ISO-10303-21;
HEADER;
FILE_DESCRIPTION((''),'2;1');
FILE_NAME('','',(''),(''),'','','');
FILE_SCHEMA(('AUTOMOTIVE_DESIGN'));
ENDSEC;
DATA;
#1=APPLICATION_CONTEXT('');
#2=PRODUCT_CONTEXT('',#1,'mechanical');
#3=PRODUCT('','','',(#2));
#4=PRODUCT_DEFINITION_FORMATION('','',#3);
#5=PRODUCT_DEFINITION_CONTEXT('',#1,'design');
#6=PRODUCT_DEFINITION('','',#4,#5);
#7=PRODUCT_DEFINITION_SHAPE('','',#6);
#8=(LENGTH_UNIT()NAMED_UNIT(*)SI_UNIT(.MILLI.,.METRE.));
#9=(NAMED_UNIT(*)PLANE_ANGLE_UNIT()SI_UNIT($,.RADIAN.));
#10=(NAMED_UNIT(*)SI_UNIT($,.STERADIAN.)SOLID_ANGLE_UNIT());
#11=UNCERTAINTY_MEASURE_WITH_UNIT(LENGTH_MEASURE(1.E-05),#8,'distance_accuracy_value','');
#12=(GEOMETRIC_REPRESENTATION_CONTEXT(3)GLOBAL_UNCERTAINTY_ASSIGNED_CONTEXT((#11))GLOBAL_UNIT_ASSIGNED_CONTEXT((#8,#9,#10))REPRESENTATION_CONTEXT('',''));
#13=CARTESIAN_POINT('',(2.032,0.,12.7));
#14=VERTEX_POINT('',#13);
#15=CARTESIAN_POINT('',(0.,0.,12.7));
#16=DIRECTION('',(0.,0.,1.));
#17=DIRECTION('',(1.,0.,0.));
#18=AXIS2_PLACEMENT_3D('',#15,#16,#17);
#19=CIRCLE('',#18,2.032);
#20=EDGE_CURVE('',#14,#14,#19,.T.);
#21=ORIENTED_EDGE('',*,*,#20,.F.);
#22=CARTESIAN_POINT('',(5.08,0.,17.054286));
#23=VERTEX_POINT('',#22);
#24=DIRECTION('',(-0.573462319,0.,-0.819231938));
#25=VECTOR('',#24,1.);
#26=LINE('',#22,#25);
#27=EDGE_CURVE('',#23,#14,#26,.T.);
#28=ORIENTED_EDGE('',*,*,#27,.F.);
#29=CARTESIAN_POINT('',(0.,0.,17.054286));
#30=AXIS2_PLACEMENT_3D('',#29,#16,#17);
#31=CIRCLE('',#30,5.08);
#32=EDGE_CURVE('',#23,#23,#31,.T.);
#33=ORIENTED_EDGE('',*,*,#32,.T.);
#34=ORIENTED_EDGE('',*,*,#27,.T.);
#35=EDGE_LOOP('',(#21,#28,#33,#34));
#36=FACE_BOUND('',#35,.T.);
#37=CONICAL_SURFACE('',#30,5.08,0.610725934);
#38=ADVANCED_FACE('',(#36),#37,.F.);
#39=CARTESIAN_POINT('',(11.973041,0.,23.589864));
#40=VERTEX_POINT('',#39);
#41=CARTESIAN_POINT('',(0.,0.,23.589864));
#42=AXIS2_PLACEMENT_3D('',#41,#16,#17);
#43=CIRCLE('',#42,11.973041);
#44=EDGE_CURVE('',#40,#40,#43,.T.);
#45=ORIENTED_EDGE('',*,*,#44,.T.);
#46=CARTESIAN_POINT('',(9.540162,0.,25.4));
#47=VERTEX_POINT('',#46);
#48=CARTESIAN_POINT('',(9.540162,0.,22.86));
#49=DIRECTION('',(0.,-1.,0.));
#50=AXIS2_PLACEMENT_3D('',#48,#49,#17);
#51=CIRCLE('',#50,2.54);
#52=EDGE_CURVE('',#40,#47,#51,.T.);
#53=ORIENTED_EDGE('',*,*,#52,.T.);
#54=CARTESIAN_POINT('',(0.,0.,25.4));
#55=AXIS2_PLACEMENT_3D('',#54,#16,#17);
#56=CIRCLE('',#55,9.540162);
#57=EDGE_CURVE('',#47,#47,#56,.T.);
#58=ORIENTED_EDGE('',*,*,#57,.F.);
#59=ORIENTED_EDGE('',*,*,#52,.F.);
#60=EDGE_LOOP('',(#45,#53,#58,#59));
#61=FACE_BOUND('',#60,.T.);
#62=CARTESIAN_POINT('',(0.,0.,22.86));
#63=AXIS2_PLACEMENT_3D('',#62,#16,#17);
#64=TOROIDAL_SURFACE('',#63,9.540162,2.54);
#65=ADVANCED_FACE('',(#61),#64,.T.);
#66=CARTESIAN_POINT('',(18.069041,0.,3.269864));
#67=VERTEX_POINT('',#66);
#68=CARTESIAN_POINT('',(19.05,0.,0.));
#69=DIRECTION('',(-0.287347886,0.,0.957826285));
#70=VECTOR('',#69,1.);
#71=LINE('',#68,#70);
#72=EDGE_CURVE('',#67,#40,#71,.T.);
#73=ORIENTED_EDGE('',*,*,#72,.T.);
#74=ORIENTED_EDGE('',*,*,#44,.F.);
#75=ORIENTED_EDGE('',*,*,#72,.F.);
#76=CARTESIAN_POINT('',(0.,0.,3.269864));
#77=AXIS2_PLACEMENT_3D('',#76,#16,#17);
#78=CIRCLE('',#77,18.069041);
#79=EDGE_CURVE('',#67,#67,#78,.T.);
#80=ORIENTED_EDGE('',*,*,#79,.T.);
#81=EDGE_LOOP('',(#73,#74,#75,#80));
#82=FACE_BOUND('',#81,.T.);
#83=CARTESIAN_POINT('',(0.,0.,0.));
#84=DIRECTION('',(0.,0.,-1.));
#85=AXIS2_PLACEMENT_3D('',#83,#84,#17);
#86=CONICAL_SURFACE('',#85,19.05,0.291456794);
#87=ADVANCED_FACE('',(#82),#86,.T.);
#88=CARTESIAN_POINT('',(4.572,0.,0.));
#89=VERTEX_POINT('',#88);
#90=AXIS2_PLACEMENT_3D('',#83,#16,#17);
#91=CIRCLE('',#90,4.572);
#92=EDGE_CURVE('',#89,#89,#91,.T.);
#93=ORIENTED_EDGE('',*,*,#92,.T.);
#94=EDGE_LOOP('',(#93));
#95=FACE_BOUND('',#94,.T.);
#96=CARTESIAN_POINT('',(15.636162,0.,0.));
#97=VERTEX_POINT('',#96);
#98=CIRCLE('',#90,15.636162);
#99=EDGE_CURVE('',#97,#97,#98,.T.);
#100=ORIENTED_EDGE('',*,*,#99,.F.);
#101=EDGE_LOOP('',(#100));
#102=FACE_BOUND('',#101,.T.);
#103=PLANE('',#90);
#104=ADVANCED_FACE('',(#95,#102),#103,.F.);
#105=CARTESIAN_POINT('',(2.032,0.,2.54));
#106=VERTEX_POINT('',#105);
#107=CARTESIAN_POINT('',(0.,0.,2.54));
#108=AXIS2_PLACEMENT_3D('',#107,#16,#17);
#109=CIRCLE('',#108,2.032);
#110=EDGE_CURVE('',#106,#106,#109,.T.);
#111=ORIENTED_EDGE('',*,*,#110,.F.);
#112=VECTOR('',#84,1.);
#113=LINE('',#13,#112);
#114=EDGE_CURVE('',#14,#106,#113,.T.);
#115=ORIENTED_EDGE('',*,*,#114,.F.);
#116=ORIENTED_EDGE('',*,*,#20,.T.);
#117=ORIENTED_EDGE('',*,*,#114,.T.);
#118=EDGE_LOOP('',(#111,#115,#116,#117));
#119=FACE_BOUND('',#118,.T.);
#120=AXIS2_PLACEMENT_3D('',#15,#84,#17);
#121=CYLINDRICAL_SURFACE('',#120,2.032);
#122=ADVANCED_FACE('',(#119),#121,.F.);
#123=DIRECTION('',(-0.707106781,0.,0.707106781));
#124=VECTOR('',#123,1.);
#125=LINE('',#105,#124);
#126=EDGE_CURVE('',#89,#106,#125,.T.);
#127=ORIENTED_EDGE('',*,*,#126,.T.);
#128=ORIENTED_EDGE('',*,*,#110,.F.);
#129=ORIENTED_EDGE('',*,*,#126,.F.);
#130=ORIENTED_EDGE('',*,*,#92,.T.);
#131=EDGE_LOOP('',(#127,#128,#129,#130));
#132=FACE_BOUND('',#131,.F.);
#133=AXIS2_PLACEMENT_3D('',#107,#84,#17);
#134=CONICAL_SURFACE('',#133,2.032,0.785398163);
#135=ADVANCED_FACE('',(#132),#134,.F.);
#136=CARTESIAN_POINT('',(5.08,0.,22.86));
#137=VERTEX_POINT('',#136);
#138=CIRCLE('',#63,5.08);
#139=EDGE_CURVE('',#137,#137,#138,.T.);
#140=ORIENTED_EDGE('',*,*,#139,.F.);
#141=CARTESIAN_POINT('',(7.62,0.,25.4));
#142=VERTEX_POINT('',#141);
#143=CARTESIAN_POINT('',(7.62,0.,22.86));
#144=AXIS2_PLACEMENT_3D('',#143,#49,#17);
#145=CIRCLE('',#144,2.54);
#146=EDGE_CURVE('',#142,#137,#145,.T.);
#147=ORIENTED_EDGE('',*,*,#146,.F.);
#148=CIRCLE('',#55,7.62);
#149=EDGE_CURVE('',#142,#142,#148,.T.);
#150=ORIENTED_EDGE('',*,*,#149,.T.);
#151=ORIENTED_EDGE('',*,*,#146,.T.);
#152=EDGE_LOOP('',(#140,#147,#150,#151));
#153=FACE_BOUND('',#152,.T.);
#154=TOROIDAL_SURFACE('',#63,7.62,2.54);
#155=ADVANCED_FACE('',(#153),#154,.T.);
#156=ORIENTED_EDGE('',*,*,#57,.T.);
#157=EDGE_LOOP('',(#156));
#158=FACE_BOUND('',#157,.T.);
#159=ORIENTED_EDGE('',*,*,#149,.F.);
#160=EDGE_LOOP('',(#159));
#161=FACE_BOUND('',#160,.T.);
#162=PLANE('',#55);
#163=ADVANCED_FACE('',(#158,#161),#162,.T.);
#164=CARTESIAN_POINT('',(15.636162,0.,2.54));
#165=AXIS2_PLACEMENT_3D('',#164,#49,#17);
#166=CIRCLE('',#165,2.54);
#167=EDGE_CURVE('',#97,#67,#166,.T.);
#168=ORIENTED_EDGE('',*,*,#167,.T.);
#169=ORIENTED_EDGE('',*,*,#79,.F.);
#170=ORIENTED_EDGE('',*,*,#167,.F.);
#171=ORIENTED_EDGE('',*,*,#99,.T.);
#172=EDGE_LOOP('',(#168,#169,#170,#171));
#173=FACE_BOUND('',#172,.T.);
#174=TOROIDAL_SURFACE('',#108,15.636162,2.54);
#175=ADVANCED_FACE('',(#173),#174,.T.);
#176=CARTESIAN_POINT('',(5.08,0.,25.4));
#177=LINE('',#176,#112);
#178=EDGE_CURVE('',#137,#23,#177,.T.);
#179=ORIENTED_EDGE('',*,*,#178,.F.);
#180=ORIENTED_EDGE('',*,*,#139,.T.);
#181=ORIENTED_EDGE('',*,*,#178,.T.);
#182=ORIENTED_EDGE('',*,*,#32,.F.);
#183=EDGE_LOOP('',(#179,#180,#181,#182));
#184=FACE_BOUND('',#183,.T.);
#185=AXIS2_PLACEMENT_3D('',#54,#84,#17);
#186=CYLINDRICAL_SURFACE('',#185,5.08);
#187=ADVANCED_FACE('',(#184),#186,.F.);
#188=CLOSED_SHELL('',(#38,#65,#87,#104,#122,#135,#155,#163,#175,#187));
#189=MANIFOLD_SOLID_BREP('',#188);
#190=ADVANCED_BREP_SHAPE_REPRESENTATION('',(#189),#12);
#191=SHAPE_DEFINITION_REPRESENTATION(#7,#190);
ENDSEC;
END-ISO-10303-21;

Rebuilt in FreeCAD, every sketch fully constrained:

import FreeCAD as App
import Part
import Sketcher
Q = App.Units.Quantity


def edges_at(feature, points):
    """Names of the edges that pass closest to the given points."""
    edges = feature.Shape.Edges
    near = lambda p: min(range(len(edges)), key=lambda i: edges[i].distToShape(Part.Vertex(*p))[0])
    return sorted({f"Edge{near(p) + 1}" for p in points})


def add_polygon(sketch, points):
    """Adds a closed chain of lines whose ends are joined by coincident constraints."""
    first, n = sketch.GeometryCount, len(points)
    for a, b in zip(points, points[1:] + points[:1]):
        sketch.addGeometry(Part.LineSegment(App.Vector(*a, 0), App.Vector(*b, 0)), False)
    for i in range(n):
        sketch.addConstraint(Sketcher.Constraint("Coincident", first + i, 2, first + (i + 1) % n, 1))

doc = App.newDocument("Part")
body = doc.addObject("PartDesign::Body", "Body")

# Sketch on XZ plane
sketch1 = body.newObject("Sketcher::SketchObject", "Sketch")
sketch1.AttachmentSupport = (doc.getObject("XZ_Plane"), [""])
sketch1.MapMode = "FlatFace"
add_polygon(sketch1, [(2.032, 12.7), (2.032, 0), (19.05, 0), (11.43, 25.4), (5.08, 25.4), (5.08, 17.054286)])  # lines 0-5
sketch1.addConstraint(Sketcher.Constraint("Vertical", 0))
sketch1.addConstraint(Sketcher.Constraint("Horizontal", 1))
sketch1.addConstraint(Sketcher.Constraint("Horizontal", 3))
sketch1.addConstraint(Sketcher.Constraint("Vertical", 4))
sketch1.addConstraint(Sketcher.Constraint("PointOnObject", 0, 2, -1))
sketch1.addConstraint(Sketcher.Constraint("DistanceY", 0, 2, 0, 1, Q("0.5 in")))
sketch1.addConstraint(Sketcher.Constraint("DistanceY", -1, 1, 2, 2, Q("1 in")))
sketch1.addConstraint(Sketcher.Constraint("DistanceX", 1, 1, 1, 2, Q("0.67 in")))
sketch1.addConstraint(Sketcher.Constraint("DistanceX", 3, 2, 3, 1, Q("0.25 in")))
sketch1.addConstraint(Sketcher.Constraint("DistanceX", -1, 1, 3, 2, Q("0.2 in")))
sketch1.addConstraint(Sketcher.Constraint("DistanceX", 2, 2, 1, 2, Q("0.3 in")))
sketch1.addConstraint(Sketcher.Constraint("DistanceY", 4, 2, 4, 1, 8.345714))
revolution = body.newObject("PartDesign::Revolution", "Revolution")
revolution.Profile = sketch1
revolution.ReferenceAxis = (sketch1, ["V_Axis"])
revolution.Angle = 360
doc.recompute()

fillet = body.newObject("PartDesign::Fillet", "Fillet")
fillet.Base = (revolution, edges_at(revolution, [(-11.43, 0, 25.4), (-5.08, 0, 25.4), (-19.05, 0, 0)]))
fillet.Radius = Q("0.1 in")
doc.recompute()

chamfer = body.newObject("PartDesign::Chamfer", "Chamfer")
chamfer.Base = (fillet, edges_at(fillet, [(-2.032, 0, 0)]))
chamfer.Size = Q("0.1 in")

doc.recompute()
